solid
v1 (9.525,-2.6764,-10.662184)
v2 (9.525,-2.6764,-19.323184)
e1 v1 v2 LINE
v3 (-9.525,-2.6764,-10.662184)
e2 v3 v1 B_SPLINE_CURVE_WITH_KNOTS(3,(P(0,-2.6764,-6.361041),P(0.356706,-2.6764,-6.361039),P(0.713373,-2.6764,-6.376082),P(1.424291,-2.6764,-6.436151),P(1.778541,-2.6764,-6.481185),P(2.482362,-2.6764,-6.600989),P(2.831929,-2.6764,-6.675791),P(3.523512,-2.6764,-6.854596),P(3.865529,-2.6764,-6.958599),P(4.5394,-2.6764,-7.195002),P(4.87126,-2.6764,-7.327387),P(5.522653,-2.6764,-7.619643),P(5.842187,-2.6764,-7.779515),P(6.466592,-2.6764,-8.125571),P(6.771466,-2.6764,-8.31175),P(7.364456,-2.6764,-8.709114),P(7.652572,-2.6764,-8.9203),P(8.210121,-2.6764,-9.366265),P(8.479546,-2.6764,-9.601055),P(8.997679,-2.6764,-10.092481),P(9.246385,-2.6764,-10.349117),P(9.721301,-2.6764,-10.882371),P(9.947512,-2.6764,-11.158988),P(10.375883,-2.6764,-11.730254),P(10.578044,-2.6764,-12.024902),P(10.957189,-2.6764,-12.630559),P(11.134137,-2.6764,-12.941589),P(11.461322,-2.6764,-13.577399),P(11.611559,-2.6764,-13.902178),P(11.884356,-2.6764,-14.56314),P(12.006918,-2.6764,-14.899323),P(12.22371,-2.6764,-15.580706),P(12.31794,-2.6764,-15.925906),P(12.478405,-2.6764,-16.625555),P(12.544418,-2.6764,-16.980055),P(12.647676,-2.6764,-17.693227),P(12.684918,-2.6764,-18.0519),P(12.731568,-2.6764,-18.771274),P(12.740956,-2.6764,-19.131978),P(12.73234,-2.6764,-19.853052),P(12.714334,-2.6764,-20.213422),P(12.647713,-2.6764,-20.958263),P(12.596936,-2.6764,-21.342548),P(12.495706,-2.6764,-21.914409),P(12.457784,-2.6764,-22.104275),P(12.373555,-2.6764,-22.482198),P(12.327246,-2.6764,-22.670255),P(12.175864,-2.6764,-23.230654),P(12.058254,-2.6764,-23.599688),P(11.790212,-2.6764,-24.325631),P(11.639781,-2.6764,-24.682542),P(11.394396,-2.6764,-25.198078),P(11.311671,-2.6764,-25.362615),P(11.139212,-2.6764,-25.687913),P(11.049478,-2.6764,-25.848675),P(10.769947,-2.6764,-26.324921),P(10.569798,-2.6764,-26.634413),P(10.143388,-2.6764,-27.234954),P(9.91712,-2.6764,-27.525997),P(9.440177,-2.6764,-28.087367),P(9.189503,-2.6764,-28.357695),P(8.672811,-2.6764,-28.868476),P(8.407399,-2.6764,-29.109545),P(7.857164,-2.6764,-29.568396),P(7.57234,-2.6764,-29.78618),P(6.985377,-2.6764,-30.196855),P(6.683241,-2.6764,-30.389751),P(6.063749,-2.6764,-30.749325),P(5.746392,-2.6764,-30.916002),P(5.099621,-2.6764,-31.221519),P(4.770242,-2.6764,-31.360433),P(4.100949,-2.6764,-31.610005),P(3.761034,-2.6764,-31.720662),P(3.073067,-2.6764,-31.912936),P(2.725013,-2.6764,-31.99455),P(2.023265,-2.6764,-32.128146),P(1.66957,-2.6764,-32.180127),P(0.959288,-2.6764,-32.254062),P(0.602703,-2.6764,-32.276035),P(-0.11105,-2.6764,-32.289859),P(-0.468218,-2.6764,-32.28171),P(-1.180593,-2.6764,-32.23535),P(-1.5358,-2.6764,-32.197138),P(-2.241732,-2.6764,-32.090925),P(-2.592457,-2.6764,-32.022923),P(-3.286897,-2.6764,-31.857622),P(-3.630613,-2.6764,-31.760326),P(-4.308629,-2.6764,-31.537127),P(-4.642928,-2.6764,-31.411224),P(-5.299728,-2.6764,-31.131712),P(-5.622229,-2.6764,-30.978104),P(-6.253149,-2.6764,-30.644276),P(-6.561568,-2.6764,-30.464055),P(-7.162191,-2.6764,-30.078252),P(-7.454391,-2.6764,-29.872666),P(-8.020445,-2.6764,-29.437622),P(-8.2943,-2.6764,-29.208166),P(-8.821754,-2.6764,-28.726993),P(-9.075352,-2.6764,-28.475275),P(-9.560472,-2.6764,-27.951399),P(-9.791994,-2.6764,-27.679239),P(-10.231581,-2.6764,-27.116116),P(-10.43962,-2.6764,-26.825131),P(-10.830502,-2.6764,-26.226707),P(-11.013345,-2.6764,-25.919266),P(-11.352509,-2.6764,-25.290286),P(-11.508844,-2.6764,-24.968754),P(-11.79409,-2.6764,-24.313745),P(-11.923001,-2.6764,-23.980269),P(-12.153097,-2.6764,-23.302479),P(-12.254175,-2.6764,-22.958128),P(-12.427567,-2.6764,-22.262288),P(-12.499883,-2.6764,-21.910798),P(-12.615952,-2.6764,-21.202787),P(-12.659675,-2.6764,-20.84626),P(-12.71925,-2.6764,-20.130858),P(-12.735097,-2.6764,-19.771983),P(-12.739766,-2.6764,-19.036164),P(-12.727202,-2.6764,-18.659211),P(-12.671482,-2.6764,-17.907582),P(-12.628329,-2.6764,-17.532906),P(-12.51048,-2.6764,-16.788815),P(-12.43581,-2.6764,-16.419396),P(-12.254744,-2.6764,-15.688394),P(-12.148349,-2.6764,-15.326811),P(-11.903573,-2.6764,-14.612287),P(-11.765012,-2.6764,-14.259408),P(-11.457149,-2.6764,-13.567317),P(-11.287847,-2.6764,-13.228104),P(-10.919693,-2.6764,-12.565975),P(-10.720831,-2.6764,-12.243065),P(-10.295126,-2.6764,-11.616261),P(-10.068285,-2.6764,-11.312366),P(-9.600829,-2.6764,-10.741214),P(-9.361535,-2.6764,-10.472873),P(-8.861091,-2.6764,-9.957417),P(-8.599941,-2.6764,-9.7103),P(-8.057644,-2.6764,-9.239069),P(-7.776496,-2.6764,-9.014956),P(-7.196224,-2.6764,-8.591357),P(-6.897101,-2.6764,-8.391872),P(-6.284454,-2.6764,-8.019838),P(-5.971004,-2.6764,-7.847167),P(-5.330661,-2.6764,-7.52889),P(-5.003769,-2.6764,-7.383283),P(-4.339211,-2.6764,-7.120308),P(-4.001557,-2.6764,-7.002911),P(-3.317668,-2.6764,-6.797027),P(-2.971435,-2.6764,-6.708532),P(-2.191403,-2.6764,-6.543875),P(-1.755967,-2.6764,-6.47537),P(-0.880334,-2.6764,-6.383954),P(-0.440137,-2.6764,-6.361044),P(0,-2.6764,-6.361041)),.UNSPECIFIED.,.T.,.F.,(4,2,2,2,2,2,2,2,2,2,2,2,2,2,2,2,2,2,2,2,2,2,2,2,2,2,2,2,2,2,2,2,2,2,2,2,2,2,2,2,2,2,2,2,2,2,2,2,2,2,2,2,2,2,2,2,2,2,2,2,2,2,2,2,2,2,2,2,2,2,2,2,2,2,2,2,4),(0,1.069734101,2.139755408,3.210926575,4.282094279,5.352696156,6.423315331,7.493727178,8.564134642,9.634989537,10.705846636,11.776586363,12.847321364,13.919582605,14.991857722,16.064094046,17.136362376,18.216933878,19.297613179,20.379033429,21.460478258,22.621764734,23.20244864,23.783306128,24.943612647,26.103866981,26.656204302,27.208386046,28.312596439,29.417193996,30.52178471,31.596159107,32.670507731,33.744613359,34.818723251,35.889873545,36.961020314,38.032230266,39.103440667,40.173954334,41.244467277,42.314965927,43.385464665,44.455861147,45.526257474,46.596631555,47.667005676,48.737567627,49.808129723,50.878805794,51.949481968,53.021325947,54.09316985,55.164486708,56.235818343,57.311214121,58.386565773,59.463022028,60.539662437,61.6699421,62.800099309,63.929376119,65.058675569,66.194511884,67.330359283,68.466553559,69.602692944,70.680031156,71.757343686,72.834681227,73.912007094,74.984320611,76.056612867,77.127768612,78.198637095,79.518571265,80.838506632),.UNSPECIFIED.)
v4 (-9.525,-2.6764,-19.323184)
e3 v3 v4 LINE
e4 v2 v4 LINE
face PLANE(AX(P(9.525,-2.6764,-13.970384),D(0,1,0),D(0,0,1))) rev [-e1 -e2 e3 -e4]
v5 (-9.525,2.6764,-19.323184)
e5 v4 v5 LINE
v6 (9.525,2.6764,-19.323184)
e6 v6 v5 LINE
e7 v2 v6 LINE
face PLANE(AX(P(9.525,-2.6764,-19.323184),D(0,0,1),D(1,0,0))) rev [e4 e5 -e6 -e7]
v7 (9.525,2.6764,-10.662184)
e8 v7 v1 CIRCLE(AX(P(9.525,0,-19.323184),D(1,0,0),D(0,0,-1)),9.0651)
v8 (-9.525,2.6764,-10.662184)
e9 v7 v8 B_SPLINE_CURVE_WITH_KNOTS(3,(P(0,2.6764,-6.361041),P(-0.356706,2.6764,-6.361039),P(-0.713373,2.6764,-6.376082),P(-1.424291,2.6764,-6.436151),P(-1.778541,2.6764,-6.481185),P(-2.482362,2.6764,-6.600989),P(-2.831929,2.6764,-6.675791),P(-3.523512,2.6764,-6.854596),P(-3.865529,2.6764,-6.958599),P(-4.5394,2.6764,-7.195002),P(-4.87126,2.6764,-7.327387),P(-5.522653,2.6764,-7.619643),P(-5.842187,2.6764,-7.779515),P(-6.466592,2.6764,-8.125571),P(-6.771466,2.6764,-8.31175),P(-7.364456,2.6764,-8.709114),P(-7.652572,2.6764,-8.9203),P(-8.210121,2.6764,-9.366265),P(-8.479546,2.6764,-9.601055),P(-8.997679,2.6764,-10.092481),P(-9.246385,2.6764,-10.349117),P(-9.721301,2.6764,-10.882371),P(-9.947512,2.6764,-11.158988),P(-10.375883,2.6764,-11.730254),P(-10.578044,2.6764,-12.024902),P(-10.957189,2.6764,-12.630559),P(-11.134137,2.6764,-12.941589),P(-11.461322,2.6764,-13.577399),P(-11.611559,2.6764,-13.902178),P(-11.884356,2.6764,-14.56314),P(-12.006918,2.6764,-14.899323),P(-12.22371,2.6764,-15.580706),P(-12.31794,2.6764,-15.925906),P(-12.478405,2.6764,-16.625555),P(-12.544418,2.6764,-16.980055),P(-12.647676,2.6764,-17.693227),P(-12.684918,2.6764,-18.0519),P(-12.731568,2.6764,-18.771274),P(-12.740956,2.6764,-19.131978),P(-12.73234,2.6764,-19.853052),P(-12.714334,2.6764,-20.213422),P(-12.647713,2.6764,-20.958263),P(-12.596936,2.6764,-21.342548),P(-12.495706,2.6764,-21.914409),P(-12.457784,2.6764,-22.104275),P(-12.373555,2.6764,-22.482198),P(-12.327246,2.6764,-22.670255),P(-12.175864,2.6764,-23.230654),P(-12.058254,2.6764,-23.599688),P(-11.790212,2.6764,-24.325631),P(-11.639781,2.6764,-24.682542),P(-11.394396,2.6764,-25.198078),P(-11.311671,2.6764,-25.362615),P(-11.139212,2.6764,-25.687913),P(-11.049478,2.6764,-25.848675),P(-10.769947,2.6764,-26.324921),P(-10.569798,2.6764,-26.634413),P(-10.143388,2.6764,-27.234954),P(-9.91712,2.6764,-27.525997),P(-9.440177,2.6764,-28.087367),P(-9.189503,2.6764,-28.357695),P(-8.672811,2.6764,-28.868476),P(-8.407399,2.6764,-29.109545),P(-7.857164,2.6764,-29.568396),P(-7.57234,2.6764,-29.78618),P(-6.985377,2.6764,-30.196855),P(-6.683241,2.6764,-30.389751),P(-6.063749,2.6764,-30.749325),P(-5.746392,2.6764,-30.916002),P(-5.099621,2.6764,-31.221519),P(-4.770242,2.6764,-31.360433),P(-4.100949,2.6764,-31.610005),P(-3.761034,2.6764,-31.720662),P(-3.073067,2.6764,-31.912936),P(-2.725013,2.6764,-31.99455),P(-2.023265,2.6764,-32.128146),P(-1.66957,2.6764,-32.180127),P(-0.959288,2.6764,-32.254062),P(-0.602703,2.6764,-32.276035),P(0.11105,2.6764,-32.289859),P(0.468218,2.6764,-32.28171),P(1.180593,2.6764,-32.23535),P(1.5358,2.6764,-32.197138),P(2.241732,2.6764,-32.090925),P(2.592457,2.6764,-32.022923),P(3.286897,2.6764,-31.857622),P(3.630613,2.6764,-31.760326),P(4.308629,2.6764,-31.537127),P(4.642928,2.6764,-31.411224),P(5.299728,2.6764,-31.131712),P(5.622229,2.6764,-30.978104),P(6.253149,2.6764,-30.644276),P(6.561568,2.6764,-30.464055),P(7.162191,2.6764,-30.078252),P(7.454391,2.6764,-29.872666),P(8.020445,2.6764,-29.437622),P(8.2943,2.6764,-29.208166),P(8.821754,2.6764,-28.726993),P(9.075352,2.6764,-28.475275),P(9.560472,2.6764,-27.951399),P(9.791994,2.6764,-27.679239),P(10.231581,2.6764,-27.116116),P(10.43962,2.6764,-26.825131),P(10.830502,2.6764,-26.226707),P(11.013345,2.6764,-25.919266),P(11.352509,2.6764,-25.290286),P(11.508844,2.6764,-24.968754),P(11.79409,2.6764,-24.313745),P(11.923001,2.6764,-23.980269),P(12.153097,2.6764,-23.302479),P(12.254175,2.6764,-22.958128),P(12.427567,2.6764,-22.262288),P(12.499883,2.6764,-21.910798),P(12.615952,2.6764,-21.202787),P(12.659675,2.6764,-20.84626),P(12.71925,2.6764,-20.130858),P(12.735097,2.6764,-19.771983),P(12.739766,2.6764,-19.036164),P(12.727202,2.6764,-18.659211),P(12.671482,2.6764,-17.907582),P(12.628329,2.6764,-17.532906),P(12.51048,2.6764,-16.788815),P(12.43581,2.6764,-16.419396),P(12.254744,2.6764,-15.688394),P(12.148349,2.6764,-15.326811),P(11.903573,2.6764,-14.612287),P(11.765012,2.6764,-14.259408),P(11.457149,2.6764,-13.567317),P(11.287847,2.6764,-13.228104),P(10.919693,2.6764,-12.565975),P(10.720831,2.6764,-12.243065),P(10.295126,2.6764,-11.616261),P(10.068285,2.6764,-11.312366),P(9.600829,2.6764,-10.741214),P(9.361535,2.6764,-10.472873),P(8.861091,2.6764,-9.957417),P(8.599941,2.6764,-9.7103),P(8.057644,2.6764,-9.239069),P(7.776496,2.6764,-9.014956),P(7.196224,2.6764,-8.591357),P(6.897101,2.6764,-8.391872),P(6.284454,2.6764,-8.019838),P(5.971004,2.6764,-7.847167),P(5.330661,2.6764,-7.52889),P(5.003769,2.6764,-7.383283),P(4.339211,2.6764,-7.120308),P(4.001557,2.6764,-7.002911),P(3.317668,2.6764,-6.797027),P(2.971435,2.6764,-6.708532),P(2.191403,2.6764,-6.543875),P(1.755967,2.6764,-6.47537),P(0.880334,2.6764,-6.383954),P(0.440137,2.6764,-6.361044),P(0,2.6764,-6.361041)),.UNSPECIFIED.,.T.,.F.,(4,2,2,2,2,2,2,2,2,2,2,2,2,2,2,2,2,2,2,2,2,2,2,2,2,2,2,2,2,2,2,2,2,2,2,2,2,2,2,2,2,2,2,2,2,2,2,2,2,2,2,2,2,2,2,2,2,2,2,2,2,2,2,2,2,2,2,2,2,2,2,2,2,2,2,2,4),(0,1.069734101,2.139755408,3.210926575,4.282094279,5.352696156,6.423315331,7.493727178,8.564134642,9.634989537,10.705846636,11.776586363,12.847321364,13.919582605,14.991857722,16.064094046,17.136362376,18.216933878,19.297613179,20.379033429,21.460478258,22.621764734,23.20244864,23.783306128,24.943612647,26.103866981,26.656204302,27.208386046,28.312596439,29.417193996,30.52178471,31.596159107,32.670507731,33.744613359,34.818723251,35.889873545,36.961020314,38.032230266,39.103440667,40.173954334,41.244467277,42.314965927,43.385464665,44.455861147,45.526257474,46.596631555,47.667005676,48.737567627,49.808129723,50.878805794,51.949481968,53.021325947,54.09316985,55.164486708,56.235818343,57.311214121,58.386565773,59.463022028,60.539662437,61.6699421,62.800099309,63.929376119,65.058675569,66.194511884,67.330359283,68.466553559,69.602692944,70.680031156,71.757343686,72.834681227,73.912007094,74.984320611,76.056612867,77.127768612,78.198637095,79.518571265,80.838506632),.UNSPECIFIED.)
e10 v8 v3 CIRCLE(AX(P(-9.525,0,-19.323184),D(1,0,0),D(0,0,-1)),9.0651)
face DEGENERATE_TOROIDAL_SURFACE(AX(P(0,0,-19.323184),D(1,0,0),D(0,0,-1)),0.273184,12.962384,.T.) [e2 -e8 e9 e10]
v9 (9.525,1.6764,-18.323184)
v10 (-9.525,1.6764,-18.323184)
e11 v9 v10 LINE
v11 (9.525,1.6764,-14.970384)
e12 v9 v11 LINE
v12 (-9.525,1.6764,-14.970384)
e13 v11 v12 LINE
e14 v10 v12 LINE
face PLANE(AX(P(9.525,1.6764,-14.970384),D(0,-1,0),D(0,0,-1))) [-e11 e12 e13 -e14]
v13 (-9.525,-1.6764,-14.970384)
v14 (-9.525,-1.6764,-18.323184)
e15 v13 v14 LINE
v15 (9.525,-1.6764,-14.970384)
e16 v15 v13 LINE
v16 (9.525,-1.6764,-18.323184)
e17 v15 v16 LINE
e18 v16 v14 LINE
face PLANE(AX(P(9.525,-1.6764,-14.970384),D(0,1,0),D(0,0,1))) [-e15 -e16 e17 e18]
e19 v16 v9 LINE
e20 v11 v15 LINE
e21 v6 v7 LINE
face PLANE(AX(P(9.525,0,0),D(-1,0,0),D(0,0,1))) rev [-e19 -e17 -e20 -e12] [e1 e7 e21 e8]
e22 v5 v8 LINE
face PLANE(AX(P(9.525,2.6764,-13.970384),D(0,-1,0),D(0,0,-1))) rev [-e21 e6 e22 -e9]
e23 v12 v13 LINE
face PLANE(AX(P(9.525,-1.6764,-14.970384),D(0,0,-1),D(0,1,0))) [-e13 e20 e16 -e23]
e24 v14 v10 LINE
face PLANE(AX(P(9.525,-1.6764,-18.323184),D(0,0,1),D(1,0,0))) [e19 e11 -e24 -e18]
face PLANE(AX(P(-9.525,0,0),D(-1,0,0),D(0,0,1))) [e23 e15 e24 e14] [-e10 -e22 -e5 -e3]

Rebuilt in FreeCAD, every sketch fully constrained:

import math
import FreeCAD as App
import Part
import Sketcher

V = App.Vector
Q = App.Units.Quantity

doc = App.newDocument("Part")
params = doc.addObject("Spreadsheet::Sheet", "Params")
for row, (alias, value) in enumerate([
    ("sketch1_width", "0.132 in"),
    ("pad1_length", "0.75 in"),
    ("sketch2_width", "0.75 in"),
    ("pad2_length", "5.3528 mm"),
    ("sketch3_width", "0.75 in"),
    ("groove_angle", "360 deg"),
], start=1):
    params.set(f"A{row}", alias)
    params.set(f"B{row}", "=" + value)
    params.setAlias(f"B{row}", alias)

body = doc.addObject("PartDesign::Body", "Body")

# Sketch on YZ plane
sketch1 = body.newObject("Sketcher::SketchObject", "Sketch")
sketch1.AttachmentSupport = (doc.getObject("YZ_Plane"), [""])
sketch1.MapMode = "FlatFace"
sketch1.addGeometry(Part.LineSegment(V(2.6764, -13.970384, 0), V(-2.6764, -13.970384, 0)), False)
sketch1.addGeometry(Part.LineSegment(V(-2.6764, -13.970384, 0), V(-2.6764, -19.323184, 0)), False)
sketch1.addGeometry(Part.LineSegment(V(-2.6764, -19.323184, 0), V(2.6764, -19.323184, 0)), False)
sketch1.addGeometry(Part.LineSegment(V(2.6764, -19.323184, 0), V(2.6764, -13.970384, 0)), False)
sketch1.addGeometry(Part.LineSegment(V(-1.6764, -18.323184, 0), V(-1.6764, -14.970384, 0)), False)
sketch1.addGeometry(Part.LineSegment(V(-1.6764, -14.970384, 0), V(1.6764, -14.970384, 0)), False)
sketch1.addGeometry(Part.LineSegment(V(1.6764, -14.970384, 0), V(1.6764, -18.323184, 0)), False)
sketch1.addGeometry(Part.LineSegment(V(1.6764, -18.323184, 0), V(-1.6764, -18.323184, 0)), False)
sketch1.addConstraint(Sketcher.Constraint("Coincident", 0, 2, 1, 1))
sketch1.addConstraint(Sketcher.Constraint("Coincident", 1, 2, 2, 1))
sketch1.addConstraint(Sketcher.Constraint("Coincident", 2, 2, 3, 1))
sketch1.addConstraint(Sketcher.Constraint("Coincident", 3, 2, 0, 1))
sketch1.addConstraint(Sketcher.Constraint("Coincident", 4, 2, 5, 1))
sketch1.addConstraint(Sketcher.Constraint("Coincident", 5, 2, 6, 1))
sketch1.addConstraint(Sketcher.Constraint("Coincident", 6, 2, 7, 1))
sketch1.addConstraint(Sketcher.Constraint("Coincident", 7, 2, 4, 1))
sketch1.addConstraint(Sketcher.Constraint("Horizontal", 0))
sketch1.addConstraint(Sketcher.Constraint("Vertical", 1))
sketch1.addConstraint(Sketcher.Constraint("Horizontal", 2))
sketch1.addConstraint(Sketcher.Constraint("Vertical", 3))
sketch1.addConstraint(Sketcher.Constraint("Vertical", 4))
sketch1.addConstraint(Sketcher.Constraint("Horizontal", 5))
sketch1.addConstraint(Sketcher.Constraint("Vertical", 6))
sketch1.addConstraint(Sketcher.Constraint("Horizontal", 7))
sketch1.addConstraint(Sketcher.Constraint("Equal", 2, 1))
sketch1.addConstraint(Sketcher.Constraint("Equal", 7, 4))
sketch1.addConstraint(Sketcher.Constraint("DistanceX", 5, 1, 5, 2, Q("0.132 in")))
sketch1.addConstraint(Sketcher.Constraint("DistanceX", 4, 2, -1, 1, Q("0.066 in")))
sketch1.addConstraint(Sketcher.Constraint("DistanceX", 0, 2, 0, 1, Q("5.3528 mm")))
sketch1.addConstraint(Sketcher.Constraint("DistanceX", 0, 2, -1, 1, Q("2.6764 mm")))
sketch1.addConstraint(Sketcher.Constraint("DistanceY", 4, 2, 0, 2, Q("1 mm")))
sketch1.addConstraint(Sketcher.Constraint("DistanceY", 0, 2, -1, 1, Q("13.970384 mm")))
sketch1.setExpression("Constraints[18]", "Params.sketch1_width")
pad1 = body.newObject("PartDesign::Pad", "Pad")
pad1.Profile = sketch1
pad1.setExpression("Length", "Params.pad1_length")
pad1.Midplane = True

# Sketch on XZ plane
sketch2 = body.newObject("Sketcher::SketchObject", "Sketch001")
sketch2.AttachmentSupport = (doc.getObject("XZ_Plane"), [""])
sketch2.MapMode = "FlatFace"
sketch2.AttachmentOffset = App.Placement(V(0, 0, -2.6764), App.Rotation())
sketch2.addGeometry(Part.LineSegment(V(-9.525, -10.258084, 0), V(-9.525, -13.970384, 0)), False)
sketch2.addGeometry(Part.LineSegment(V(-9.525, -13.970384, 0), V(9.525, -13.970384, 0)), False)
sketch2.addGeometry(Part.LineSegment(V(9.525, -13.970384, 0), V(9.525, -10.258084, 0)), False)
sketch2.addGeometry(Part.ArcOfCircle(Part.Circle(V(0, -19.05, 0), V(0, 0, 1), 12.962384), math.radians(42.708116), math.radians(137.291884)), False)
sketch2.addConstraint(Sketcher.Constraint("Coincident", 0, 2, 1, 1))
sketch2.addConstraint(Sketcher.Constraint("Coincident", 1, 2, 2, 1))
sketch2.addConstraint(Sketcher.Constraint("Coincident", 2, 2, 3, 1))
sketch2.addConstraint(Sketcher.Constraint("Coincident", 3, 2, 0, 1))
sketch2.addConstraint(Sketcher.Constraint("Vertical", 0))
sketch2.addConstraint(Sketcher.Constraint("Horizontal", 1))
sketch2.addConstraint(Sketcher.Constraint("Vertical", 2))
sketch2.addConstraint(Sketcher.Constraint("Symmetric", 2, 2, 3, 2, -2))
sketch2.addConstraint(Sketcher.Constraint("DistanceX", 1, 1, 1, 2, Q("0.75 in")))
sketch2.addConstraint(Sketcher.Constraint("DistanceY", 3, 3, -1, 1, Q("0.75 in")))
sketch2.addConstraint(Sketcher.Constraint("DistanceY", 0, 2, 0, 1, Q("3.7123 mm")))
sketch2.addConstraint(Sketcher.Constraint("Radius", 3, Q("12.962384 mm")))
sketch2.setExpression("Constraints[8]", "Params.sketch2_width")
pad2 = body.newObject("PartDesign::Pad", "Pad001")
pad2.Profile = sketch2
pad2.setExpression("Length", "Params.pad2_length")

# Sketch on XZ plane
sketch3 = body.newObject("Sketcher::SketchObject", "Sketch002")
sketch3.AttachmentSupport = (doc.getObject("XZ_Plane"), [""])
sketch3.MapMode = "FlatFace"
sketch3.addGeometry(Part.LineSegment(V(-9.525, -10.258084, 0), V(-9.525, 8.791916, 0)), False)
sketch3.addGeometry(Part.LineSegment(V(-9.525, 8.791916, 0), V(9.525, 8.791916, 0)), False)
sketch3.addGeometry(Part.LineSegment(V(9.525, 8.791916, 0), V(9.525, -10.258084, 0)), False)
sketch3.addGeometry(Part.ArcOfCircle(Part.Circle(V(0, -19.05, 0), V(0, 0, 1), 12.962384), math.radians(42.708116), math.radians(137.291884)), False)
sketch3.addGeometry(Part.LineSegment(V(9.525, -19.323184, 0), V(-9.525, -19.323184, 0)), True)  # axis
sketch3.addConstraint(Sketcher.Constraint("Coincident", 0, 2, 1, 1))
sketch3.addConstraint(Sketcher.Constraint("Coincident", 1, 2, 2, 1))
sketch3.addConstraint(Sketcher.Constraint("Coincident", 2, 2, 3, 1))
sketch3.addConstraint(Sketcher.Constraint("Coincident", 3, 2, 0, 1))
sketch3.addConstraint(Sketcher.Constraint("Vertical", 0))
sketch3.addConstraint(Sketcher.Constraint("Horizontal", 1))
sketch3.addConstraint(Sketcher.Constraint("Vertical", 2))
sketch3.addConstraint(Sketcher.Constraint("Horizontal", 4))
sketch3.addConstraint(Sketcher.Constraint("Symmetric", 2, 2, 3, 2, -2))
sketch3.addConstraint(Sketcher.Constraint("Vertical", 2, 2, 4, 1))
sketch3.addConstraint(Sketcher.Constraint("Vertical", 3, 2, 4, 2))
sketch3.addConstraint(Sketcher.Constraint("Equal", 4, 0))
sketch3.addConstraint(Sketcher.Constraint("DistanceX", 1, 1, 1, 2, Q("0.75 in")))
sketch3.addConstraint(Sketcher.Constraint("DistanceY", 3, 3, -1, 1, Q("0.75 in")))
sketch3.addConstraint(Sketcher.Constraint("Radius", 3, Q("12.962384 mm")))
sketch3.addConstraint(Sketcher.Constraint("DistanceY", 4, 1, 2, 2, Q("9.0651 mm")))
sketch3.setExpression("Constraints[12]", "Params.sketch3_width")
groove = body.newObject("PartDesign::Groove", "Groove")
groove.Profile = sketch3
groove.ReferenceAxis = (sketch3, ["Axis0"])
groove.setExpression("Angle", "Params.groove_angle")

doc.recompute()
